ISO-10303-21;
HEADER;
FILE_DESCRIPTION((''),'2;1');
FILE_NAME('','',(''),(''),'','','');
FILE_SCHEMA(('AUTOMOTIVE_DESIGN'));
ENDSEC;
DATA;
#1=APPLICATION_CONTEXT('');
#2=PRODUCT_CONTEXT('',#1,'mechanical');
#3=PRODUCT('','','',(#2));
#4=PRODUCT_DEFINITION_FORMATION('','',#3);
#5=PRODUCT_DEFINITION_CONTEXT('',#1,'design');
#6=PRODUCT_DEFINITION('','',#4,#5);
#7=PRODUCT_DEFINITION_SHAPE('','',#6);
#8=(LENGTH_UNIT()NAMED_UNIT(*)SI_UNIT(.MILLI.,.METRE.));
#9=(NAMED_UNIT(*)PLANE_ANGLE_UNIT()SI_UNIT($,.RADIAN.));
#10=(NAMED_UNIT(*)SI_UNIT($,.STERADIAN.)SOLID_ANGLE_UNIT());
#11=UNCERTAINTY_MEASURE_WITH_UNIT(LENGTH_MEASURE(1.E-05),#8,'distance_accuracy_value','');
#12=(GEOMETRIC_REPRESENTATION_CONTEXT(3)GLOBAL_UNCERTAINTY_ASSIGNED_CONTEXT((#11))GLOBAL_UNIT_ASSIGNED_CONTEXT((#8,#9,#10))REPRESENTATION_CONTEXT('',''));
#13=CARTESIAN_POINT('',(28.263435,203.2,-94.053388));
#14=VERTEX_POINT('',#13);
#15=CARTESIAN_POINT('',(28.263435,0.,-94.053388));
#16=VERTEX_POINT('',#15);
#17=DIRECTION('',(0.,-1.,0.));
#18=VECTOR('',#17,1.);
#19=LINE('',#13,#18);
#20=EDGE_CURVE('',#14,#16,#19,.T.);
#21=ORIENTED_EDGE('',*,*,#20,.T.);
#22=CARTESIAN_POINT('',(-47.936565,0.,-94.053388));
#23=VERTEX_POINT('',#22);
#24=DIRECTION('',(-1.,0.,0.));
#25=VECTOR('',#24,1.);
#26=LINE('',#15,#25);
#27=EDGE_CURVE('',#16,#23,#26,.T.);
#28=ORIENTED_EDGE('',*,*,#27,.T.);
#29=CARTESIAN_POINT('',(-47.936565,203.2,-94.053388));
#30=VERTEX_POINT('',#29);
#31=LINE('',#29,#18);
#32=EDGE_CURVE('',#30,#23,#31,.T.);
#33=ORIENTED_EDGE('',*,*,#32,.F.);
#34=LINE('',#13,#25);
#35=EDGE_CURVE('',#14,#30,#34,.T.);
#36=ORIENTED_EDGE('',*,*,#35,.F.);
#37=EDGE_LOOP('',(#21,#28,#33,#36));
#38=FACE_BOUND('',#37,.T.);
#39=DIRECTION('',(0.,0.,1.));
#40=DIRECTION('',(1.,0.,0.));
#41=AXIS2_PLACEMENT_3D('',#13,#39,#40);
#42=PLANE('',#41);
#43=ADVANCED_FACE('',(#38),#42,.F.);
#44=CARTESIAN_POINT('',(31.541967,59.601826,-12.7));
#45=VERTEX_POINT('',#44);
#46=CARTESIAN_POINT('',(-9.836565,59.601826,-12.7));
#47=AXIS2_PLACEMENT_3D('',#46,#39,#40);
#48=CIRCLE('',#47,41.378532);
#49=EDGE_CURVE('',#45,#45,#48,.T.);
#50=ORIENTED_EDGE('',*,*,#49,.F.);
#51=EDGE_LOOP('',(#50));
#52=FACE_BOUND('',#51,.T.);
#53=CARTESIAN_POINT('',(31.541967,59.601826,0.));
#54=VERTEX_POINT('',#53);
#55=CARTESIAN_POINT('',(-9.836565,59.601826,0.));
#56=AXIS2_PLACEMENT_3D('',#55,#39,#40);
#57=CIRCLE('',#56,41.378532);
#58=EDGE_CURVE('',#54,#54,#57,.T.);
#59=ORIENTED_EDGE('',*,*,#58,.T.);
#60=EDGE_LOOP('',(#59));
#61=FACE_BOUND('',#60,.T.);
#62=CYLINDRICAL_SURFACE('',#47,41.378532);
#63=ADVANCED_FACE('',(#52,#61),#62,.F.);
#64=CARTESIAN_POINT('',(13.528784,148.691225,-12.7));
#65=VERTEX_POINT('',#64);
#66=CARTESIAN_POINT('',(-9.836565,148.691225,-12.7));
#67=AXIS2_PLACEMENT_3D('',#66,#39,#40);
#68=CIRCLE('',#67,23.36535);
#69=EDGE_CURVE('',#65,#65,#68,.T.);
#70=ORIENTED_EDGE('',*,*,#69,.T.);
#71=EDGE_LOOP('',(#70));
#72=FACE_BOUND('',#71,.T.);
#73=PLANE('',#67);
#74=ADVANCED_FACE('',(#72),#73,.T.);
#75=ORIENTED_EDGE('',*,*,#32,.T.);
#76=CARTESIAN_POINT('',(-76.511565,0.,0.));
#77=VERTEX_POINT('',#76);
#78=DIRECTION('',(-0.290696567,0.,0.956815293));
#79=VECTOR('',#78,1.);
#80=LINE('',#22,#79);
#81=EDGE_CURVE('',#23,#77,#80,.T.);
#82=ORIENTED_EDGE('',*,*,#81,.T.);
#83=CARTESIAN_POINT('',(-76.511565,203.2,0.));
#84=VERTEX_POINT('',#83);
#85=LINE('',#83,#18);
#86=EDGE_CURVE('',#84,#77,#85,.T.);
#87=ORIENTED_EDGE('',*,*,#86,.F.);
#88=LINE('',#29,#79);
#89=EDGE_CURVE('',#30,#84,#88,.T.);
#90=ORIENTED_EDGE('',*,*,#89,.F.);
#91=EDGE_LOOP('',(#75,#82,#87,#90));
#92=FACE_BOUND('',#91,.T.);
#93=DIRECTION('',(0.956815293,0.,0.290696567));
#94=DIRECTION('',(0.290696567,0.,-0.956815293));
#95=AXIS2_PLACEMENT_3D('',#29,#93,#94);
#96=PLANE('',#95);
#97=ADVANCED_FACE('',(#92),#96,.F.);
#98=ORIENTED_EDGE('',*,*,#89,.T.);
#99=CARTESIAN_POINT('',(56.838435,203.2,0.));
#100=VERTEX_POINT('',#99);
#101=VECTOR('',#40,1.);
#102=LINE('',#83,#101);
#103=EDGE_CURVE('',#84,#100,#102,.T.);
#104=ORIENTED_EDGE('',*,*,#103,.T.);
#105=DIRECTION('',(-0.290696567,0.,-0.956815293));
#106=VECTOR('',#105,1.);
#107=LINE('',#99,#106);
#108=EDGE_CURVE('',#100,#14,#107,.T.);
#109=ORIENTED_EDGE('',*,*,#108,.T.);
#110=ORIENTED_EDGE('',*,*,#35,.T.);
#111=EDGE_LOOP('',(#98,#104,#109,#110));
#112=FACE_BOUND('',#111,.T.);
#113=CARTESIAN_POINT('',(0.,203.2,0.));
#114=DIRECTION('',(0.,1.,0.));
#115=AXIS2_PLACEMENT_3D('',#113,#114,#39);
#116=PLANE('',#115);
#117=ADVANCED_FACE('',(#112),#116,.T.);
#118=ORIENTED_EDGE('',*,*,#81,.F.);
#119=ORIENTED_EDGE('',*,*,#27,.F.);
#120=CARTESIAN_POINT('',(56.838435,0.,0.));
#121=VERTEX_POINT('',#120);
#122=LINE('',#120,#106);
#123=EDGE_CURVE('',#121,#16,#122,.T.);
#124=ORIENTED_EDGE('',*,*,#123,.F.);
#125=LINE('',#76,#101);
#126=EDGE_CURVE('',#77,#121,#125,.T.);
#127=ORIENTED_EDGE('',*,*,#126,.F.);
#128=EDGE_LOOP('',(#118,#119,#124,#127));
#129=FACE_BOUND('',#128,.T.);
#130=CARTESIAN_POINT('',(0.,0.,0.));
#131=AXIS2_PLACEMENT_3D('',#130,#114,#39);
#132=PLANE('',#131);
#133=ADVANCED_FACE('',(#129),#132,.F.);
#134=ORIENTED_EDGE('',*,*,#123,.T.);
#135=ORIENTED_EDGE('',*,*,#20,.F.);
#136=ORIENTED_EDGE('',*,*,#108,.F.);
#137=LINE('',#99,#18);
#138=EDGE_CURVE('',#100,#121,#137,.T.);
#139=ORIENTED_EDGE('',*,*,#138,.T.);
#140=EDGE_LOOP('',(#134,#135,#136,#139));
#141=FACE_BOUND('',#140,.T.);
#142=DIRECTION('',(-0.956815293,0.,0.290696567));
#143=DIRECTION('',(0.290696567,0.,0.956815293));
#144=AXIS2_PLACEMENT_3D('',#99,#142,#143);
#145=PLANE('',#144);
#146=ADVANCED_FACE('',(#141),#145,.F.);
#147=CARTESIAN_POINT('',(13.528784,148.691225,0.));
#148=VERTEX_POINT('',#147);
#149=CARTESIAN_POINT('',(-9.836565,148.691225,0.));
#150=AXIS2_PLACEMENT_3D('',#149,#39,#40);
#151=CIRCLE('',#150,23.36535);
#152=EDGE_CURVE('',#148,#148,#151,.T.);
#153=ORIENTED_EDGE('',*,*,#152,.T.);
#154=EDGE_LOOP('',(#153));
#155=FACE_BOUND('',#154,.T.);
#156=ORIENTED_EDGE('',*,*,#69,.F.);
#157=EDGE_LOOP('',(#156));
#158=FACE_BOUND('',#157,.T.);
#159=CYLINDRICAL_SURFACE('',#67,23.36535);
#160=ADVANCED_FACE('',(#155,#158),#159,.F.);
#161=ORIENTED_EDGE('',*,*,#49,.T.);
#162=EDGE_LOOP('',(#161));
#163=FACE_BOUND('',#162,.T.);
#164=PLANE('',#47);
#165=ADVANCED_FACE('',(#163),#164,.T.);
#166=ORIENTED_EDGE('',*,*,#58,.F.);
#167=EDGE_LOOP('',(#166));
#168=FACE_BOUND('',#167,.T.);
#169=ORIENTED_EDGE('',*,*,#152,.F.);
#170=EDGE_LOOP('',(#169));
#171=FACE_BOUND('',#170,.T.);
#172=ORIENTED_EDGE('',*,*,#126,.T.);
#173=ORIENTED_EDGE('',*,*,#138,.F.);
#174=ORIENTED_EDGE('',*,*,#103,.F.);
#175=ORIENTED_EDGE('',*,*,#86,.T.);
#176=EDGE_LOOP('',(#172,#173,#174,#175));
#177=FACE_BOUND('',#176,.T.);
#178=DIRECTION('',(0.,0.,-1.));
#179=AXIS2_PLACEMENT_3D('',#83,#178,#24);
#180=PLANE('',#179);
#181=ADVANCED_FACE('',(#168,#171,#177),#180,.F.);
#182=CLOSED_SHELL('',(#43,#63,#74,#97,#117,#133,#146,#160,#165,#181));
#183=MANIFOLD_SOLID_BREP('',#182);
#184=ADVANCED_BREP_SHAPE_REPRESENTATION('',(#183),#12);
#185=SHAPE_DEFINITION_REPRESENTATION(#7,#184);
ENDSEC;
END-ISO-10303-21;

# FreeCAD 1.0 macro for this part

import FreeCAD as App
import Part
import Sketcher

V = App.Vector
Q = App.Units.Quantity


def add_polygon(sketch, points):
    """Adds a closed chain of lines whose ends are joined by coincident constraints."""
    first, n = sketch.GeometryCount, len(points)
    for a, b in zip(points, points[1:] + points[:1]):
        sketch.addGeometry(Part.LineSegment(App.Vector(*a, 0), App.Vector(*b, 0)), False)
    for i in range(n):
        sketch.addConstraint(Sketcher.Constraint("Coincident", first + i, 2, first + (i + 1) % n, 1))

doc = App.newDocument("Part")
body = doc.addObject("PartDesign::Body", "Body")

sketch1 = body.newObject("Sketcher::SketchObject", "Sketch")
sketch1.AttachmentSupport = (doc.getObject("XZ_Plane"), [""])
sketch1.MapMode = "FlatFace"
add_polygon(sketch1, [(-77, 0), (57, 0), (28, -94), (-48, -94)])
sketch1.addConstraint(Sketcher.Constraint("Horizontal", 0))
sketch1.addConstraint(Sketcher.Constraint("Horizontal", 2))
sketch1.addConstraint(Sketcher.Constraint("PointOnObject", 0, 2, -1))
sketch1.addConstraint(Sketcher.Constraint("Equal", 1, 3))
sketch1.addConstraint(Sketcher.Constraint("DistanceX", 2, 2, 2, 1, Q("3 in")))
sketch1.addConstraint(Sketcher.Constraint("DistanceX", 0, 1, 0, 2, Q("5.25 in")))
sketch1.addConstraint(Sketcher.Constraint("Distance", 1, 98.298374))
sketch1.addConstraint(Sketcher.Constraint("DistanceX", -1, 1, 0, 2, 56.838435))
pad1 = body.newObject("PartDesign::Pad", "Pad")
pad1.Profile = sketch1
pad1.Length = Q("8 in")
pad1.Reversed = True

sketch2 = body.newObject("Sketcher::SketchObject", "Sketch001")
sketch2.AttachmentSupport = (doc.getObject("XY_Plane"), [""])
sketch2.MapMode = "FlatFace"
sketch2.addGeometry(Part.Circle(V(-10, 149, 0), V(0, 0, 1), 23), False)
sketch2.addGeometry(Part.Circle(V(-10, 60, 0), V(0, 0, 1), 41), False)
sketch2.addConstraint(Sketcher.Constraint("Vertical", 0, 3, 1, 3))
sketch2.addConstraint(Sketcher.Constraint("Diameter", 0, 46.7307))
sketch2.addConstraint(Sketcher.Constraint("Diameter", 1, 82.757064))
sketch2.addConstraint(Sketcher.Constraint("DistanceY", 1, 3, 0, 3, 89.089399))
sketch2.addConstraint(Sketcher.Constraint("DistanceX", 0, 3, -1, 1, 9.836565))
sketch2.addConstraint(Sketcher.Constraint("DistanceY", -1, 1, 0, 3, 148.691225))
pocket1 = body.newObject("PartDesign::Pocket", "Pocket")
pocket1.Profile = sketch2
pocket1.Length = Q("0.5 in")

doc.recompute()
